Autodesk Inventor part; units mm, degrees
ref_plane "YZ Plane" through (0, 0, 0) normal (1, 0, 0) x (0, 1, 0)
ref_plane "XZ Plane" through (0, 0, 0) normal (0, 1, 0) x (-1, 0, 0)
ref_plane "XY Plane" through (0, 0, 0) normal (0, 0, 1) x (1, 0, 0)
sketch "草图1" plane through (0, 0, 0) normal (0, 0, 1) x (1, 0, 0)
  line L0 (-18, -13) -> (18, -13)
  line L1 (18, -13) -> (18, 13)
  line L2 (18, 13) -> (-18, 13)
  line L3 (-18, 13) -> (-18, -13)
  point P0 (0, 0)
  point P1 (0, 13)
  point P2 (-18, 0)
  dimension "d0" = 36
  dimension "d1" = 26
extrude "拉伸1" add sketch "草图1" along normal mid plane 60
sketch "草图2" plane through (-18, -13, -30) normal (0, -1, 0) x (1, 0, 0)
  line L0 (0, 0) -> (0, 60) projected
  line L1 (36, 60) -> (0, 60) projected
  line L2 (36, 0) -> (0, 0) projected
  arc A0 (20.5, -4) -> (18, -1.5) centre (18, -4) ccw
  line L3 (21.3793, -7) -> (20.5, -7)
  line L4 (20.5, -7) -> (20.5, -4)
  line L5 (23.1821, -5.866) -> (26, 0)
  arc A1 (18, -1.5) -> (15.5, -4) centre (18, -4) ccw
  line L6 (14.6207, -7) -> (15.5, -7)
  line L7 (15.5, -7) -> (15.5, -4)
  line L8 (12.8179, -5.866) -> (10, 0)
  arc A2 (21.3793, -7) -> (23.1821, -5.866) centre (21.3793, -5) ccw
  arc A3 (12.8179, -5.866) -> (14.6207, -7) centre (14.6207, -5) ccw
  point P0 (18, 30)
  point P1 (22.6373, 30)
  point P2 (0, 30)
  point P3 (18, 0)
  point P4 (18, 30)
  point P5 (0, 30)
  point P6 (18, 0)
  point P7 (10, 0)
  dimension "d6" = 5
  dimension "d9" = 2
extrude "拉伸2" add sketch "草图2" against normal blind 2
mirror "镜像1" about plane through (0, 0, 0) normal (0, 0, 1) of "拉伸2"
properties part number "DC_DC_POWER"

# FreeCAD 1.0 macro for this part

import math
import FreeCAD as App
import Part
import Sketcher
Q = App.Units.Quantity


def add_polygon(sketch, points):
    """Adds a closed chain of lines whose ends are joined by coincident constraints."""
    first, n = sketch.GeometryCount, len(points)
    for a, b in zip(points, points[1:] + points[:1]):
        sketch.addGeometry(Part.LineSegment(App.Vector(*a, 0), App.Vector(*b, 0)), False)
    for i in range(n):
        sketch.addConstraint(Sketcher.Constraint("Coincident", first + i, 2, first + (i + 1) % n, 1))

doc = App.newDocument("Part")
body = doc.addObject("PartDesign::Body", "Body")

# Sketch on XY plane
sketch1 = doc.addObject("Sketcher::SketchObject", "Sketch")
body.addObject(sketch1)
sketch1.AttachmentSupport = (doc.XY_Plane, [""])
sketch1.MapMode = "FlatFace"
add_polygon(sketch1, [(-18, 13), (-18, -13), (18, -13), (18, 13)])  # lines 0-3
sketch1.addConstraint([
    Sketcher.Constraint("Vertical", 0),
    Sketcher.Constraint("Horizontal", 1),
    Sketcher.Constraint("Vertical", 2),
    Sketcher.Constraint("Horizontal", 3),
    Sketcher.Constraint("Symmetric", 0, 2, 2, 2, -1, 1),
    Sketcher.Constraint("DistanceX", 1, 1, 1, 2, Q("36 mm")),
    Sketcher.Constraint("DistanceY", 0, 2, 0, 1, Q("26 mm")),
])
pad1 = doc.addObject("PartDesign::Pad", "Pad")
body.addObject(pad1)
pad1.Profile = sketch1
pad1.Length = 60
pad1.Midplane = True

# Sketch on XZ plane
sketch2 = doc.addObject("Sketcher::SketchObject", "Sketch001")
body.addObject(sketch2)
sketch2.AttachmentSupport = (doc.XZ_Plane, [""])
sketch2.MapMode = "FlatFace"
sketch2.AttachmentOffset = App.Placement(App.Vector(0, 0, 13), App.Rotation())
sketch2.addGeometry([
    Part.LineSegment(App.Vector(5.2, -35.9, 0), App.Vector(8, -30, 0)),  # 0
    Part.LineSegment(App.Vector(8, -30, 0), App.Vector(-8, -30, 0)),  # 1
    Part.LineSegment(App.Vector(-8, -30, 0), App.Vector(-5.2, -35.9, 0)),  # 2
    Part.ArcOfCircle(Part.Circle(App.Vector(-3.4, -35, 0), App.Vector(0, 0, 1), 2), math.radians(-154), math.radians(-90)),  # 3
    Part.LineSegment(App.Vector(-3.4, -37, 0), App.Vector(-2.5, -37, 0)),  # 4
    Part.LineSegment(App.Vector(-2.5, -37, 0), App.Vector(-2.5, -34, 0)),  # 5
    Part.ArcOfCircle(Part.Circle(App.Vector(0, -34, 0), App.Vector(0, 0, 1), 2.5), math.radians(0), math.radians(180)),  # 6
    Part.LineSegment(App.Vector(2.5, -34, 0), App.Vector(2.5, -37, 0)),  # 7
    Part.LineSegment(App.Vector(2.5, -37, 0), App.Vector(3.4, -37, 0)),  # 8
    Part.ArcOfCircle(Part.Circle(App.Vector(3.4, -35, 0), App.Vector(0, 0, 1), 2), math.radians(-90), math.radians(-26)),  # 9
], False)
sketch2.addConstraint([
    Sketcher.Constraint("Coincident", 0, 2, 1, 1),
    Sketcher.Constraint("Coincident", 1, 2, 2, 1),
    Sketcher.Constraint("Tangent", 2, 2, 3, 1),
    Sketcher.Constraint("Tangent", 3, 2, 4, 1),
    Sketcher.Constraint("Coincident", 4, 2, 5, 1),
    Sketcher.Constraint("Tangent", 5, 2, 6, 2),
    Sketcher.Constraint("Tangent", 6, 1, 7, 1),
    Sketcher.Constraint("Coincident", 7, 2, 8, 1),
    Sketcher.Constraint("Tangent", 8, 2, 9, 1),
    Sketcher.Constraint("Tangent", 9, 2, 0, 1),
    Sketcher.Constraint("Horizontal", 1),
    Sketcher.Constraint("Horizontal", 4),
    Sketcher.Constraint("Vertical", 5),
    Sketcher.Constraint("Vertical", 7),
    Sketcher.Constraint("Horizontal", 8),
    Sketcher.Constraint("Equal", 3, 9),
    Sketcher.Constraint("Symmetric", 3, 3, 9, 3, -2),
    Sketcher.Constraint("PointOnObject", 6, 3, -2),
    Sketcher.Constraint("Horizontal", 2, 2, 9, 2),
    Sketcher.Constraint("Radius", 3, Q("2 mm")),
    Sketcher.Constraint("Radius", 6, Q("2.5 mm")),
    Sketcher.Constraint("DistanceY", 9, 3, 0, 2, Q("5 mm")),
    Sketcher.Constraint("DistanceX", 1, 2, 1, 1, Q("16 mm")),
    Sketcher.Constraint("DistanceY", 5, 1, 5, 2, Q("3 mm")),
    Sketcher.Constraint("DistanceY", 3, 3, -1, 1, Q("35 mm")),
    Sketcher.Constraint("DistanceX", 4, 1, 4, 2, Q("0.8793 mm")),
])
pad2 = doc.addObject("PartDesign::Pad", "Pad001")
body.addObject(pad2)
pad2.Profile = sketch2
pad2.Length = 2
pad2.Reversed = True
doc.recompute()

mirrored = doc.addObject("PartDesign::Mirrored", "Mirrored")
body.addObject(mirrored)
mirrored.Originals = [pad2]
mirrored.MirrorPlane = (doc.XY_Plane, [""])
body.Tip = mirrored

doc.recompute()
